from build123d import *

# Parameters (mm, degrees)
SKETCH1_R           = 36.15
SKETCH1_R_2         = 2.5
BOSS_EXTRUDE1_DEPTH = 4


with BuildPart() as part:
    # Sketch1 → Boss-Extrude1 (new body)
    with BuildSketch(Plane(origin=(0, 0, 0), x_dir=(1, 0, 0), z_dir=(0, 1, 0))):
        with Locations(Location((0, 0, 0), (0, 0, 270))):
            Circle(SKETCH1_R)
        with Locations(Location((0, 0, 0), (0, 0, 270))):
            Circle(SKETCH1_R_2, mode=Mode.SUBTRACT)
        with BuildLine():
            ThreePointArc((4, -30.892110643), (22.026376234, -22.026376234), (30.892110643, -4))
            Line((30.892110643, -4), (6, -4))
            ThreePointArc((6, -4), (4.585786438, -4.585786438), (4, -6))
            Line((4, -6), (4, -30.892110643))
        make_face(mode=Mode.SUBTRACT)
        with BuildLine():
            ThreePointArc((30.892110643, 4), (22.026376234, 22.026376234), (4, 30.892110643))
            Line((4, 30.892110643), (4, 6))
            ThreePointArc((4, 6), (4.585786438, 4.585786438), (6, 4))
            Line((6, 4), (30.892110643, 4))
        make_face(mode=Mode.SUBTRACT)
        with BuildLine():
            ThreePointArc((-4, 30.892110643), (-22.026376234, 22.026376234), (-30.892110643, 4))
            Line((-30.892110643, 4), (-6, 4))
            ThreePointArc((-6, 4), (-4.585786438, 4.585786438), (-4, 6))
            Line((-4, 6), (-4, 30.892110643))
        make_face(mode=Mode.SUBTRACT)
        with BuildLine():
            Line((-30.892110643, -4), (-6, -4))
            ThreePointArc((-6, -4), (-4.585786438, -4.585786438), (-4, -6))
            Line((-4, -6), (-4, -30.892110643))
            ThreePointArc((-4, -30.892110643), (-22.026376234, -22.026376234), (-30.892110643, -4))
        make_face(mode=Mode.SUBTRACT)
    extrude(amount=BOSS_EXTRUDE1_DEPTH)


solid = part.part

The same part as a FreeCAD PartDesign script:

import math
import FreeCAD as App
import Part
import Sketcher

V = App.Vector

doc = App.newDocument("Part")
body = doc.addObject("PartDesign::Body", "Body")

# Sketch on XZ plane
sketch1 = doc.addObject("Sketcher::SketchObject", "Sketch")
body.addObject(sketch1)
sketch1.AttachmentSupport = (doc.XZ_Plane, [""])
sketch1.MapMode = "FlatFace"
sketch1.addGeometry([
    Part.Circle(V(0, 0, 0), V(0, 0, 1), 36.1),  # 0
    Part.ArcOfCircle(Part.Circle(V(0, 0, 0), V(0, 0, 1), 31.1), math.radians(-173), math.radians(-97)),  # 1
    Part.LineSegment(V(-4, -30.9, 0), V(-4, -6, 0)),  # 2
    Part.ArcOfCircle(Part.Circle(V(-6, -6, 0), V(0, 0, 1), 2), math.radians(0), math.radians(90)),  # 3
    Part.LineSegment(V(-6, -4, 0), V(-30.9, -4, 0)),  # 4
    Part.ArcOfCircle(Part.Circle(V(0, 0, 0), V(0, 0, 1), 31.1), math.radians(97), math.radians(173)),  # 5
    Part.LineSegment(V(-30.9, 4, 0), V(-6, 4, 0)),  # 6
    Part.ArcOfCircle(Part.Circle(V(-6, 6, 0), V(0, 0, 1), 2), math.radians(-90), math.radians(0)),  # 7
    Part.LineSegment(V(-4, 6, 0), V(-4, 30.9, 0)),  # 8
    Part.ArcOfCircle(Part.Circle(V(0, 0, 0), V(0, 0, 1), 31.1), math.radians(-83), math.radians(-7)),  # 9
    Part.LineSegment(V(30.9, -4, 0), V(6, -4, 0)),  # 10
    Part.ArcOfCircle(Part.Circle(V(6, -6, 0), V(0, 0, 1), 2), math.radians(90), math.radians(180)),  # 11
    Part.LineSegment(V(4, -6, 0), V(4, -30.9, 0)),  # 12
    Part.Circle(V(0, 0, 0), V(0, 0, 1), 2.5),  # 13
    Part.ArcOfCircle(Part.Circle(V(0, 0, 0), V(0, 0, 1), 31.1), math.radians(7), math.radians(83)),  # 14
    Part.LineSegment(V(4, 30.9, 0), V(4, 6, 0)),  # 15
    Part.ArcOfCircle(Part.Circle(V(6, 6, 0), V(0, 0, 1), 2), math.radians(-180), math.radians(-90)),  # 16
    Part.LineSegment(V(6, 4, 0), V(30.9, 4, 0)),  # 17
], False)
sketch1.addConstraint([
    Sketcher.Constraint("Coincident", 1, 2, 2, 1),
    Sketcher.Constraint("Tangent", 2, 2, 3, 1),
    Sketcher.Constraint("Tangent", 3, 2, 4, 1),
    Sketcher.Constraint("Coincident", 4, 2, 1, 1),
    Sketcher.Constraint("Coincident", 5, 2, 6, 1),
    Sketcher.Constraint("Tangent", 6, 2, 7, 1),
    Sketcher.Constraint("Tangent", 7, 2, 8, 1),
    Sketcher.Constraint("Coincident", 8, 2, 5, 1),
    Sketcher.Constraint("Coincident", 9, 2, 10, 1),
    Sketcher.Constraint("Tangent", 10, 2, 11, 1),
    Sketcher.Constraint("Tangent", 11, 2, 12, 1),
    Sketcher.Constraint("Coincident", 12, 2, 9, 1),
    Sketcher.Constraint("Coincident", 14, 2, 15, 1),
    Sketcher.Constraint("Tangent", 15, 2, 16, 1),
    Sketcher.Constraint("Tangent", 16, 2, 17, 1),
    Sketcher.Constraint("Coincident", 17, 2, 14, 1),
    Sketcher.Constraint("Vertical", 2),
    Sketcher.Constraint("Horizontal", 4),
    Sketcher.Constraint("Horizontal", 6),
    Sketcher.Constraint("Vertical", 8),
    Sketcher.Constraint("Horizontal", 10),
    Sketcher.Constraint("Vertical", 12),
    Sketcher.Constraint("Vertical", 15),
    Sketcher.Constraint("Horizontal", 17),
    Sketcher.Constraint("Coincident", 0, 3, -1, 1),
    Sketcher.Constraint("Coincident", 1, 3, -1, 1),
    Sketcher.Constraint("Coincident", 5, 3, -1, 1),
    Sketcher.Constraint("Coincident", 9, 3, -1, 1),
    Sketcher.Constraint("Coincident", 13, 3, -1, 1),
    Sketcher.Constraint("Coincident", 14, 3, -1, 1),
    Sketcher.Constraint("Equal", 1, 5),
    Sketcher.Constraint("Equal", 3, 7),
    Sketcher.Constraint("Equal", 5, 9),
    Sketcher.Constraint("Equal", 7, 11),
    Sketcher.Constraint("Equal", 9, 14),
    Sketcher.Constraint("Equal", 11, 16),
    Sketcher.Constraint("Symmetric", 7, 3, 11, 3, -1, 1),
    Sketcher.Constraint("Symmetric", 3, 3, 16, 3, -1, 1),
    Sketcher.Constraint("Symmetric", 3, 3, 11, 3, -2),
    Sketcher.Constraint("Equal", 17, 2),
    Sketcher.Constraint("Diameter", 13, 5.0),
    Sketcher.Constraint("Radius", 3, 2.0),
    Sketcher.Constraint("Diameter", 0, 72.3),
    Sketcher.Constraint("Radius", 1, 31.15),
    Sketcher.Constraint("DistanceX", 3, 3, -1, 1, 6.0),
])
pad1 = doc.addObject("PartDesign::Pad", "Pad")
body.addObject(pad1)
pad1.Profile = sketch1
pad1.Length = 4
pad1.Reversed = True

doc.recompute()
